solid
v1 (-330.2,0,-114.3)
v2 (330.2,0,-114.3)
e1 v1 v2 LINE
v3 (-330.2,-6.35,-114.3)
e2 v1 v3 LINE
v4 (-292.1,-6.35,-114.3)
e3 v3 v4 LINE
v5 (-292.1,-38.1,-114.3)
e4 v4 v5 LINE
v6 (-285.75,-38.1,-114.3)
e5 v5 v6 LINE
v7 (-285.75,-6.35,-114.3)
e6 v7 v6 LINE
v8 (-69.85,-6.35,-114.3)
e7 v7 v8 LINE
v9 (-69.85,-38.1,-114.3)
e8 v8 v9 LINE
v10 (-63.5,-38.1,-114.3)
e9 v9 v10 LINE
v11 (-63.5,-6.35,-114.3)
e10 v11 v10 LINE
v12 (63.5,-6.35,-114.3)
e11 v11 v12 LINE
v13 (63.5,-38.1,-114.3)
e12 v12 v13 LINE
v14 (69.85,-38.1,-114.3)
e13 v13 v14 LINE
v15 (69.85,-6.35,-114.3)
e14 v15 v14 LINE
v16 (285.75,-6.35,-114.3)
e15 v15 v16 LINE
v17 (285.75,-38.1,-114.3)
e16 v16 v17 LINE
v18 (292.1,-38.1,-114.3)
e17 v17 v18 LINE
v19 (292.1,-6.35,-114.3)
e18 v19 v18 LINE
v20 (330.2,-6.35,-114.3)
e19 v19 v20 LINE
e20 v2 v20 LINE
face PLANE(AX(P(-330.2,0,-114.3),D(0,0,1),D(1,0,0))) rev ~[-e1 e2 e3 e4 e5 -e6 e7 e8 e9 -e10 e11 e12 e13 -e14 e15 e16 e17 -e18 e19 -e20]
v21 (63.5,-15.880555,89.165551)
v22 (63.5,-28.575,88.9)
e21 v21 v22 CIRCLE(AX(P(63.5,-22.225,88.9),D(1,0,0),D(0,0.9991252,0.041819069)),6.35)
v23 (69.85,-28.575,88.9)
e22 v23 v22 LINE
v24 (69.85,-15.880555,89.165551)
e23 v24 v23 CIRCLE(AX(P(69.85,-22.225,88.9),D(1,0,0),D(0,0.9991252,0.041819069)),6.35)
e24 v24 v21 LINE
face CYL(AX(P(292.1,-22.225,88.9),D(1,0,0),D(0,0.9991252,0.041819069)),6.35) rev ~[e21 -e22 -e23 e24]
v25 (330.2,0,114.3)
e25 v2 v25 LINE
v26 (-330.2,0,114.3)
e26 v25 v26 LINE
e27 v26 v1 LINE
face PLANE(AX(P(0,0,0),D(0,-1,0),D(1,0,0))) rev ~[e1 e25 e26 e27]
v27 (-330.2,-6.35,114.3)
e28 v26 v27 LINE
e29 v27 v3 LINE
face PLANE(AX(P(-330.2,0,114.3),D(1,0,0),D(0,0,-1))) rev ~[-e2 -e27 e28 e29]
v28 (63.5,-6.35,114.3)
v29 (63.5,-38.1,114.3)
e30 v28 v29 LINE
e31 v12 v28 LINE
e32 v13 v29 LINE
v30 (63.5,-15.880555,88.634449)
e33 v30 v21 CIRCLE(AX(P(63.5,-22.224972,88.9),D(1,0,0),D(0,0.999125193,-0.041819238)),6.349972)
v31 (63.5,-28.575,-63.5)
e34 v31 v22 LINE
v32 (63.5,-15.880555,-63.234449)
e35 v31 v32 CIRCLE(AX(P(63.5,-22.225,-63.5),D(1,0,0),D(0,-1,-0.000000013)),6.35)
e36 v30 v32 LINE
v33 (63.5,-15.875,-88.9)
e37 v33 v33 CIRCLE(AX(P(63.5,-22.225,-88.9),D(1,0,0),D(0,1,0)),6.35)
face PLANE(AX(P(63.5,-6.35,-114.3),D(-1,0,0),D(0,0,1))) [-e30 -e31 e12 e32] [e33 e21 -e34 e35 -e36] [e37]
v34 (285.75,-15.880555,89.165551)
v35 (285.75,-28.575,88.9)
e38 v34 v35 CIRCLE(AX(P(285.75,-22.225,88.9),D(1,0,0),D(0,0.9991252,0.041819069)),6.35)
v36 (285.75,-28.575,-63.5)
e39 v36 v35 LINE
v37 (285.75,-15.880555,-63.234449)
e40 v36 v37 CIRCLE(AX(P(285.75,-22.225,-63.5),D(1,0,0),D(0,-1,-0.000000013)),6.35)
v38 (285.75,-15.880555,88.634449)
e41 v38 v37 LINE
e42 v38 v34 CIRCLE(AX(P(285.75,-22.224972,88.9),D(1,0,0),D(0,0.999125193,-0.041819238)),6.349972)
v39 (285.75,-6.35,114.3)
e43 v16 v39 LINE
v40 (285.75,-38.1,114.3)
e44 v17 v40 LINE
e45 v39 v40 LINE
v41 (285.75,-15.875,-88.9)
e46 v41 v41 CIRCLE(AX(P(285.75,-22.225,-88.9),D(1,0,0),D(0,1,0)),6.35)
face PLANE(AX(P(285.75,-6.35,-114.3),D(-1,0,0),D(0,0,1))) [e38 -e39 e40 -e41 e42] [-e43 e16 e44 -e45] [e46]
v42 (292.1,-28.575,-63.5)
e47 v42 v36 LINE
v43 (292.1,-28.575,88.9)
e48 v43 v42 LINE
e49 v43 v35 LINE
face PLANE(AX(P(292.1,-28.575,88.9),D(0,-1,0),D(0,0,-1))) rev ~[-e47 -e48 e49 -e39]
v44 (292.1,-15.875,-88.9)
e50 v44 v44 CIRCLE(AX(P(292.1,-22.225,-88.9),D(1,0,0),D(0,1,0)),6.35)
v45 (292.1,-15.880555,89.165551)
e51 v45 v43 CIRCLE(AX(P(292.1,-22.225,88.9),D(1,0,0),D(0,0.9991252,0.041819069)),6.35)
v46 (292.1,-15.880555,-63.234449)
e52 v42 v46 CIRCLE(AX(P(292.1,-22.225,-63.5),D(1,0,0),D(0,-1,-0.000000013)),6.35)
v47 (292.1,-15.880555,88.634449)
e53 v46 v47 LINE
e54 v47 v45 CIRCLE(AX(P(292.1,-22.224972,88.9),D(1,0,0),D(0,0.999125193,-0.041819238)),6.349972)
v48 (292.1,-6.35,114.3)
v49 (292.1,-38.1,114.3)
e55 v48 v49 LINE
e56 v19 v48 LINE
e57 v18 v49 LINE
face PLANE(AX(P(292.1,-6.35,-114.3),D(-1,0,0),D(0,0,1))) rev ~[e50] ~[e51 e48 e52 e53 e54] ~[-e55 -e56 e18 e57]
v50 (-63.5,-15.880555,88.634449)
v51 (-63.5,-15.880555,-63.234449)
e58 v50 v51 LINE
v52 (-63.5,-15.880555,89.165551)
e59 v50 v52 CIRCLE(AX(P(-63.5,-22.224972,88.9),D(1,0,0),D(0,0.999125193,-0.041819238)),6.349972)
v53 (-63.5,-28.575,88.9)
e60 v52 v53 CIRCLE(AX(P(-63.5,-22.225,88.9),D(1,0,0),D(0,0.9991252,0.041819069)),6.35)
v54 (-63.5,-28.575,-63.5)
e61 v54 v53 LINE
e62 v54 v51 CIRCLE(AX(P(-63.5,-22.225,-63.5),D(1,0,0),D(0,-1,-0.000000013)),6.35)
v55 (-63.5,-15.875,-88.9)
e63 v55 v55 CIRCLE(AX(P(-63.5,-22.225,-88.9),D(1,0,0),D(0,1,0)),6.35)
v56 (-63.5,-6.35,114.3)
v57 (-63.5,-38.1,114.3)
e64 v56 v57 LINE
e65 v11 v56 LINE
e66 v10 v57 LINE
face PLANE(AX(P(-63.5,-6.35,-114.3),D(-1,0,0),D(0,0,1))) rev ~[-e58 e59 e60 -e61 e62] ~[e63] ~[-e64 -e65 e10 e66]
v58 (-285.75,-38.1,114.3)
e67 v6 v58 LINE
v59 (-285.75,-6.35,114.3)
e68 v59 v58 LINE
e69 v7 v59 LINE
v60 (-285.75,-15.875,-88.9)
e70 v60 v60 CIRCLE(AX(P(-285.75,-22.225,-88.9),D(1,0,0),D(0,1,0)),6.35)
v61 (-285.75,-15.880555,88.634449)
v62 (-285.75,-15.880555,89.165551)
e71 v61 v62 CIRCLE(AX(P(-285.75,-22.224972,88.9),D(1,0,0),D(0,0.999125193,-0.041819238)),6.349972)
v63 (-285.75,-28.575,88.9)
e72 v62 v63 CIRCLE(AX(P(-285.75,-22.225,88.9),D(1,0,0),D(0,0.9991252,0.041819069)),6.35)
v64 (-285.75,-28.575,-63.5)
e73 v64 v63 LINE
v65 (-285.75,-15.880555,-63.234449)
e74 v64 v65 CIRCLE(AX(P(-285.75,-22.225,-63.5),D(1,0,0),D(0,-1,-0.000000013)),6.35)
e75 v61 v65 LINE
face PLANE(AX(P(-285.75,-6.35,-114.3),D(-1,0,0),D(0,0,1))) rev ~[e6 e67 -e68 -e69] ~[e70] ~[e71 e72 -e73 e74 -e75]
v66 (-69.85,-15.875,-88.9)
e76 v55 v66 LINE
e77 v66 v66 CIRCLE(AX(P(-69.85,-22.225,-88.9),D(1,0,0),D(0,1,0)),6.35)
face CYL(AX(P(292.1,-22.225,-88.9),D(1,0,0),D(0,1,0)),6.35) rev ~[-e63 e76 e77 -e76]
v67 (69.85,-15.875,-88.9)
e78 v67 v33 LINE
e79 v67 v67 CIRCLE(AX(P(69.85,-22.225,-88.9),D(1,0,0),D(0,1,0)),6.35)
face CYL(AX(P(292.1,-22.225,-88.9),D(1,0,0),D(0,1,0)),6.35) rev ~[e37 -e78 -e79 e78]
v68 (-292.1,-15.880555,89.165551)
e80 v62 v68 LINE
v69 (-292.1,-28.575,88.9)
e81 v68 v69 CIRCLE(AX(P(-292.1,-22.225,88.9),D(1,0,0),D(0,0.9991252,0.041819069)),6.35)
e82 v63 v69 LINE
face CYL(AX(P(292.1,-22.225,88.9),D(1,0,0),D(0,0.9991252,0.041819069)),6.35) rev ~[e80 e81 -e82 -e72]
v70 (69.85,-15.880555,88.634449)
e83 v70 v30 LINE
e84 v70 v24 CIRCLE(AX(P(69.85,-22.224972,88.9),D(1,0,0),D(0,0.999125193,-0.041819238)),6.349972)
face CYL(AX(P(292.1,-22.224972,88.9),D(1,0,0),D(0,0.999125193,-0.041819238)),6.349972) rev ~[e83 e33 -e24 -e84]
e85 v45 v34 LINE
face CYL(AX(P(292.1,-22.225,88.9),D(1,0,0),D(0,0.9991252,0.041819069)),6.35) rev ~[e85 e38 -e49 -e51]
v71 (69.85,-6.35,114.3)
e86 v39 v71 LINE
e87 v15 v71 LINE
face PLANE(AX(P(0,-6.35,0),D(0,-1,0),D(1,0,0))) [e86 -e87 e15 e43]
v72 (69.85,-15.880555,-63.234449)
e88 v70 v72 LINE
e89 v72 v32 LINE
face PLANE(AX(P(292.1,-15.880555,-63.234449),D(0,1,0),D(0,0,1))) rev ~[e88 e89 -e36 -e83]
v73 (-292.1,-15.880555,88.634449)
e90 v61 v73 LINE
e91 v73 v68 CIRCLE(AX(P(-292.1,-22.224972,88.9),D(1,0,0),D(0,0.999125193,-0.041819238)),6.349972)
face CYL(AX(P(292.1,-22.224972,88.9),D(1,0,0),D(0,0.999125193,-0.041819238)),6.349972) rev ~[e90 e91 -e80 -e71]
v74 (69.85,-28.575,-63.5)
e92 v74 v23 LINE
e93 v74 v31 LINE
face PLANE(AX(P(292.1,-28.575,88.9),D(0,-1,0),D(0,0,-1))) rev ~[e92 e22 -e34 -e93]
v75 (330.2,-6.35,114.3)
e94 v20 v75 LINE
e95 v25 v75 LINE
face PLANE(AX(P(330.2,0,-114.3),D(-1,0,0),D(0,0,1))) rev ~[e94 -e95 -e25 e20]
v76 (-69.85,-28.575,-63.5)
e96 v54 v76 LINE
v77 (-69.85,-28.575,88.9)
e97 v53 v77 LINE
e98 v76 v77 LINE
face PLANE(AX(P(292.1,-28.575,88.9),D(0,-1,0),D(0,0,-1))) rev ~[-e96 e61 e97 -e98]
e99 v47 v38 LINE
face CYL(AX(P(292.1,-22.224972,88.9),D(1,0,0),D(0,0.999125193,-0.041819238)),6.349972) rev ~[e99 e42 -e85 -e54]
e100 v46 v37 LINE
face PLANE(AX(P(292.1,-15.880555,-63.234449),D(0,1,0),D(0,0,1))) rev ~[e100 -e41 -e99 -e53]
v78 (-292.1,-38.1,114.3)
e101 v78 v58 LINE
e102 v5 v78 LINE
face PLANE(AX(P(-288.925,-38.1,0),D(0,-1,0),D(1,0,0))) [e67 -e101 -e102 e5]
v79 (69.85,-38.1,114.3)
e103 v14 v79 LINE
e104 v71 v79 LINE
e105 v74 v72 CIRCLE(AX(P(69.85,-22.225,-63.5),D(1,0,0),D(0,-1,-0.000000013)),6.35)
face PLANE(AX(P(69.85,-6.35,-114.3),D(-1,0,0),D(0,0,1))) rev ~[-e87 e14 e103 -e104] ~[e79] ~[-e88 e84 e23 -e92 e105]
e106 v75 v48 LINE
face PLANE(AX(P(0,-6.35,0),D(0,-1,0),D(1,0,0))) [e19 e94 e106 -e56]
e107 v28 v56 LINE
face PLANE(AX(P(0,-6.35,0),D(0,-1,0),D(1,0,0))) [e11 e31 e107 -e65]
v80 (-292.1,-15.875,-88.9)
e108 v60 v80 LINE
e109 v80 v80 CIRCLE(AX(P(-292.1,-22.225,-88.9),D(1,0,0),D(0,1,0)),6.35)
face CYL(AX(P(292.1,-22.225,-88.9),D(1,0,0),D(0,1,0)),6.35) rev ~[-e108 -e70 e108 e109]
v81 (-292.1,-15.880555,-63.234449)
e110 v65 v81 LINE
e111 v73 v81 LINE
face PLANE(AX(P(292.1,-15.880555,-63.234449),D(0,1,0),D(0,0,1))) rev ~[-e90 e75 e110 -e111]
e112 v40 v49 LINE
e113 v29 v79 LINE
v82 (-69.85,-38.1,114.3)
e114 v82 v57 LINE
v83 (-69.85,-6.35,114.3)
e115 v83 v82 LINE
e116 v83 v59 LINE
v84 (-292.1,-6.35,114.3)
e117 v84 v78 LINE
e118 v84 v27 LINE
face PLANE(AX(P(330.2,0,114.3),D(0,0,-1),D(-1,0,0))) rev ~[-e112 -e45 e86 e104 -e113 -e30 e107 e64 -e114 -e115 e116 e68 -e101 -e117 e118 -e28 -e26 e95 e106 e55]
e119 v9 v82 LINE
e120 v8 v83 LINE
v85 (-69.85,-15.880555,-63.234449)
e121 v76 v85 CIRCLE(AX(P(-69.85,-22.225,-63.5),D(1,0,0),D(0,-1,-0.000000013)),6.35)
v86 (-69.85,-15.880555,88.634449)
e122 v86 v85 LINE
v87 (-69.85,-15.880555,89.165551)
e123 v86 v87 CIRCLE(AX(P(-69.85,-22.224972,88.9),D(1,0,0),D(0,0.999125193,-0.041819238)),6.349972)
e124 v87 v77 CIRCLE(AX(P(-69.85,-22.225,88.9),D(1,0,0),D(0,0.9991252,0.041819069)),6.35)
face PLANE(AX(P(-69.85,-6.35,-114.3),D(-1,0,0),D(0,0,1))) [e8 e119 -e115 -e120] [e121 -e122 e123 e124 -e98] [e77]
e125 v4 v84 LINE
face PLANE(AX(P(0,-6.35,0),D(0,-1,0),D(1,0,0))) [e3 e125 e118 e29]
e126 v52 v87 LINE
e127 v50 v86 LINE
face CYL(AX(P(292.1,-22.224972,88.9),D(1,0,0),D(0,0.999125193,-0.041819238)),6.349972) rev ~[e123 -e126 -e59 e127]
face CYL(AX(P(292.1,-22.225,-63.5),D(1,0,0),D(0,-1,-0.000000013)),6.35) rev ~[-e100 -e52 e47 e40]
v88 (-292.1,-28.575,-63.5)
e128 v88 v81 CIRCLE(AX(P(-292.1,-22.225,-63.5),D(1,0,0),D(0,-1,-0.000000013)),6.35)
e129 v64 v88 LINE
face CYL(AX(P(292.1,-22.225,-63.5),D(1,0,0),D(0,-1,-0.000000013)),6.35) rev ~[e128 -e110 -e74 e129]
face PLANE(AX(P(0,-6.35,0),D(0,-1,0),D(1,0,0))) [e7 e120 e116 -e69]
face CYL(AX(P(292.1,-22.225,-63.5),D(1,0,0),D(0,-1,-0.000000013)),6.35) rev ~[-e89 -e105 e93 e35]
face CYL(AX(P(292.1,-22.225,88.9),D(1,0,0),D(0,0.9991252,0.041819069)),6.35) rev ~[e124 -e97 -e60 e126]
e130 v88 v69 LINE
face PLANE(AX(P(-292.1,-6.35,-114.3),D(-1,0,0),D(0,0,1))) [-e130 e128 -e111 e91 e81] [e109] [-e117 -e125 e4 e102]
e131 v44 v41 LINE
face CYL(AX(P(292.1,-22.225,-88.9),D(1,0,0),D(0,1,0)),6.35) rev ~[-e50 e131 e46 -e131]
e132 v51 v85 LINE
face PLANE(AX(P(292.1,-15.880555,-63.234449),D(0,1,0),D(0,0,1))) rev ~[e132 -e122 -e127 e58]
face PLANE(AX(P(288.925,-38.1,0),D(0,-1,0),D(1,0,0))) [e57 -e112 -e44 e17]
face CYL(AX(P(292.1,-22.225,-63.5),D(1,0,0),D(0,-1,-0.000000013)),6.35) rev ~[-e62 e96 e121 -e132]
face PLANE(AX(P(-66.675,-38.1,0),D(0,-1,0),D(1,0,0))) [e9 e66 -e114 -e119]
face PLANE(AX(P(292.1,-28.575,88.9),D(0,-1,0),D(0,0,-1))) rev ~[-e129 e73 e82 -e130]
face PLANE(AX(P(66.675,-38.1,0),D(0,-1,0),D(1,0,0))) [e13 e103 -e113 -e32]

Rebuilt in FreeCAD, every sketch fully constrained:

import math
import FreeCAD as App
import Part
import Sketcher
Q = App.Units.Quantity


def add_polygon(sketch, points):
    """Adds a closed chain of lines whose ends are joined by coincident constraints."""
    first, n = sketch.GeometryCount, len(points)
    for a, b in zip(points, points[1:] + points[:1]):
        sketch.addGeometry(Part.LineSegment(App.Vector(*a, 0), App.Vector(*b, 0)), False)
    for i in range(n):
        sketch.addConstraint(Sketcher.Constraint("Coincident", first + i, 2, first + (i + 1) % n, 1))

doc = App.newDocument("Part")
body = doc.addObject("PartDesign::Body", "Body")

# Sketch on XZ plane
sketch1 = doc.addObject("Sketcher::SketchObject", "Sketch")
body.addObject(sketch1)
sketch1.AttachmentSupport = (doc.XZ_Plane, [""])
sketch1.MapMode = "FlatFace"
add_polygon(sketch1, [(-330.2, 114.3), (-330.2, -114.3), (330.2, -114.3), (330.2, 114.3)])  # lines 0-3
sketch1.addConstraint(Sketcher.Constraint("Vertical", 0))
sketch1.addConstraint(Sketcher.Constraint("Horizontal", 1))
sketch1.addConstraint(Sketcher.Constraint("Vertical", 2))
sketch1.addConstraint(Sketcher.Constraint("Horizontal", 3))
sketch1.addConstraint(Sketcher.Constraint("Symmetric", 0, 2, 2, 2, -1, 1))
sketch1.addConstraint(Sketcher.Constraint("DistanceX", 1, 1, 1, 2, Q("26 in")))
sketch1.addConstraint(Sketcher.Constraint("DistanceY", 0, 2, 0, 1, Q("9 in")))
pad1 = doc.addObject("PartDesign::Pad", "Pad")
body.addObject(pad1)
pad1.Profile = sketch1
pad1.Length = Q("0.25 in")

# Sketch on XZ plane
sketch2 = doc.addObject("Sketcher::SketchObject", "Sketch001")
body.addObject(sketch2)
sketch2.AttachmentSupport = (doc.XZ_Plane, [""])
sketch2.MapMode = "FlatFace"
sketch2.AttachmentOffset = App.Placement(App.Vector(0, 0, 0.25 * 25.4), App.Rotation())
add_polygon(sketch2, [(-292.1, 114.3), (-292.1, -114.3), (-285.75, -114.3), (-285.75, 114.3)])  # lines 0-3
add_polygon(sketch2, [(285.75, 114.3), (285.75, -114.3), (292.1, -114.3), (292.1, 114.3)])  # lines 4-7
add_polygon(sketch2, [(-69.85, 114.3), (-69.85, -114.3), (-63.5, -114.3), (-63.5, 114.3)])  # lines 8-11
add_polygon(sketch2, [(63.5, 114.3), (63.5, -114.3), (69.85, -114.3), (69.85, 114.3)])  # lines 12-15
sketch2.addConstraint(Sketcher.Constraint("Vertical", 0))
sketch2.addConstraint(Sketcher.Constraint("Horizontal", 1))
sketch2.addConstraint(Sketcher.Constraint("Vertical", 2))
sketch2.addConstraint(Sketcher.Constraint("Horizontal", 3))
sketch2.addConstraint(Sketcher.Constraint("Vertical", 4))
sketch2.addConstraint(Sketcher.Constraint("Horizontal", 5))
sketch2.addConstraint(Sketcher.Constraint("Vertical", 6))
sketch2.addConstraint(Sketcher.Constraint("Horizontal", 7))
sketch2.addConstraint(Sketcher.Constraint("Vertical", 8))
sketch2.addConstraint(Sketcher.Constraint("Horizontal", 9))
sketch2.addConstraint(Sketcher.Constraint("Vertical", 10))
sketch2.addConstraint(Sketcher.Constraint("Horizontal", 11))
sketch2.addConstraint(Sketcher.Constraint("Vertical", 12))
sketch2.addConstraint(Sketcher.Constraint("Horizontal", 13))
sketch2.addConstraint(Sketcher.Constraint("Vertical", 14))
sketch2.addConstraint(Sketcher.Constraint("Horizontal", 15))
sketch2.addConstraint(Sketcher.Constraint("Symmetric", 2, 2, 4, 2, -1, 1))
sketch2.addConstraint(Sketcher.Constraint("Symmetric", 0, 2, 6, 2, -1, 1))
sketch2.addConstraint(Sketcher.Constraint("Symmetric", 10, 2, 12, 2, -1, 1))
sketch2.addConstraint(Sketcher.Constraint("Symmetric", 8, 2, 14, 2, -1, 1))
sketch2.addConstraint(Sketcher.Constraint("Horizontal", 1, 2, 4, 2))
sketch2.addConstraint(Sketcher.Constraint("Horizontal", 5, 2, 8, 2))
sketch2.addConstraint(Sketcher.Constraint("Horizontal", 7, 2, 10, 2))
sketch2.addConstraint(Sketcher.Constraint("Equal", 7, 9))
sketch2.addConstraint(Sketcher.Constraint("DistanceY", 0, 2, 0, 1, Q("9 in")))
sketch2.addConstraint(Sketcher.Constraint("DistanceX", 0, 2, 5, 2, Q("23 in")))
sketch2.addConstraint(Sketcher.Constraint("DistanceX", 8, 2, 4, 2, Q("14 in")))
sketch2.addConstraint(Sketcher.Constraint("DistanceX", 1, 1, 1, 2, Q("0.25 in")))
pad2 = doc.addObject("PartDesign::Pad", "Pad001")
body.addObject(pad2)
pad2.Profile = sketch2
pad2.Length = Q("1.25 in")

# Sketch on YZ plane
sketch3 = doc.addObject("Sketcher::SketchObject", "Sketch002")
body.addObject(sketch3)
sketch3.AttachmentSupport = (doc.YZ_Plane, [""])
sketch3.MapMode = "FlatFace"
sketch3.AttachmentOffset = App.Placement(App.Vector(0, 0, 11.5 * 25.4), App.Rotation())
sketch3.addGeometry(Part.Circle(App.Vector(-22.225, -88.9, 0), App.Vector(0, 0, 1), 6.35), False)
sketch3.addGeometry(Part.LineSegment(App.Vector(-28.575, 88.9, 0), App.Vector(-28.575, -63.5, 0)), False)
sketch3.addGeometry(Part.ArcOfCircle(Part.Circle(App.Vector(-22.225, -63.5, 0), App.Vector(0, 0, 1), 6.35), math.radians(-179.999999), math.radians(2.396754)), False)
sketch3.addGeometry(Part.LineSegment(App.Vector(-15.880555, -63.234449, 0), App.Vector(-15.880555, 88.634449, 0)), False)
sketch3.addGeometry(Part.ArcOfCircle(Part.Circle(App.Vector(-22.224972, 88.9, 0), App.Vector(0, 0, 1), 6.349972), math.radians(-2.396765), math.radians(2.396765)), False)
sketch3.addGeometry(Part.ArcOfCircle(Part.Circle(App.Vector(-22.225, 88.9, 0), App.Vector(0, 0, 1), 6.35), math.radians(2.396755), math.radians(179.999999)), False)
sketch3.addConstraint(Sketcher.Constraint("Coincident", 1, 2, 2, 1))
sketch3.addConstraint(Sketcher.Constraint("Coincident", 2, 2, 3, 1))
sketch3.addConstraint(Sketcher.Constraint("Coincident", 3, 2, 4, 1))
sketch3.addConstraint(Sketcher.Constraint("Coincident", 4, 2, 5, 1))
sketch3.addConstraint(Sketcher.Constraint("Coincident", 5, 2, 1, 1))
sketch3.addConstraint(Sketcher.Constraint("Vertical", 1))
sketch3.addConstraint(Sketcher.Constraint("Vertical", 3))
sketch3.addConstraint(Sketcher.Constraint("Diameter", 0, Q("0.5 in")))
sketch3.addConstraint(Sketcher.Constraint("DistanceY", 1, 2, 1, 1, Q("6 in")))
sketch3.addConstraint(Sketcher.Constraint("Radius", 2, Q("0.25 in")))
sketch3.addConstraint(Sketcher.Constraint("Radius", 5, Q("0.25 in")))
sketch3.addConstraint(Sketcher.Constraint("DistanceY", 0, 3, 2, 3, Q("1 in")))
sketch3.addConstraint(Sketcher.Constraint("DistanceY", 2, 3, 4, 3, Q("6 in")))
sketch3.addConstraint(Sketcher.Constraint("DistanceY", 2, 3, 5, 3, Q("6 in")))
sketch3.addConstraint(Sketcher.Constraint("DistanceY", 0, 3, 1, 2, Q("1 in")))
sketch3.addConstraint(Sketcher.Constraint("DistanceY", 2, 2, 4, 2, Q("6 in")))
sketch3.addConstraint(Sketcher.Constraint("DistanceY", 0, 3, -1, 1, Q("3.5 in")))
sketch3.addConstraint(Sketcher.Constraint("DistanceX", 1, 2, 0, 3, Q("0.25 in")))
sketch3.addConstraint(Sketcher.Constraint("DistanceX", 0, 3, -1, 1, Q("0.875 in")))
sketch3.addConstraint(Sketcher.Constraint("DistanceY", 3, 1, 3, 2, 151.868898))
sketch3.addConstraint(Sketcher.Constraint("Radius", 4, 6.349972))
pocket1 = doc.addObject("PartDesign::Pocket", "Pocket")
body.addObject(pocket1)
pocket1.Profile = sketch3
pocket1.Length = Q("30 in")

doc.recompute()
